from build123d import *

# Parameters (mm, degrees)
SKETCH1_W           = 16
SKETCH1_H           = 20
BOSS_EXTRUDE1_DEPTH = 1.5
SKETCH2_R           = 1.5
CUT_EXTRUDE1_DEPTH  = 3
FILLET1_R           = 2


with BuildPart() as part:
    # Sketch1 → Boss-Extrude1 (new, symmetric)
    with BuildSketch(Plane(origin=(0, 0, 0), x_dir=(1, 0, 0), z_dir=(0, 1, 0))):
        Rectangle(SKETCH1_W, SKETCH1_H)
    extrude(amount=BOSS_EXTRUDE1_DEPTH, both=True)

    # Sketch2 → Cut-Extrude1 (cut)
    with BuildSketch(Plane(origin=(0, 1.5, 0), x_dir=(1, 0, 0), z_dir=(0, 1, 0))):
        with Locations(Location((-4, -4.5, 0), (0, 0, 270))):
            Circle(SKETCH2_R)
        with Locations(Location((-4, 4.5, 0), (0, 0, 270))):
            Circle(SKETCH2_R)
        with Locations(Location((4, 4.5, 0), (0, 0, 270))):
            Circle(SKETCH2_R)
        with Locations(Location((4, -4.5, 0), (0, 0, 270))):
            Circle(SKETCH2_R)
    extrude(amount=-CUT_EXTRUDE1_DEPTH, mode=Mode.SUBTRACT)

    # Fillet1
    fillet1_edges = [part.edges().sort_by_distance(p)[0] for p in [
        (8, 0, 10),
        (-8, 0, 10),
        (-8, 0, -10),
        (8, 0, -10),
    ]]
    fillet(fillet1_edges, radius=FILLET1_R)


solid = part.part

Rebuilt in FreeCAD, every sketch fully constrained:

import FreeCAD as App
import Part
import Sketcher
Q = App.Units.Quantity


def edges_at(feature, points):
    """Names of the edges that pass closest to the given points."""
    edges = feature.Shape.Edges
    near = lambda p: min(range(len(edges)), key=lambda i: edges[i].distToShape(Part.Vertex(*p))[0])
    return sorted({f"Edge{near(p) + 1}" for p in points})

doc = App.newDocument("Part")
body = doc.addObject("PartDesign::Body", "Body")

sketch1 = body.newObject("Sketcher::SketchObject", "Sketch")
sketch1.AttachmentSupport = (doc.getObject("XZ_Plane"), [""])
sketch1.MapMode = "FlatFace"
sketch1.addGeometry(Part.LineSegment(App.Vector(-8, -10, 0), App.Vector(-8, 10, 0)), False)
sketch1.addGeometry(Part.LineSegment(App.Vector(-8, 10, 0), App.Vector(8, 10, 0)), False)
sketch1.addGeometry(Part.LineSegment(App.Vector(8, 10, 0), App.Vector(8, -10, 0)), False)
sketch1.addGeometry(Part.LineSegment(App.Vector(8, -10, 0), App.Vector(-8, -10, 0)), False)
sketch1.addConstraint(Sketcher.Constraint("Coincident", 0, 2, 1, 1))
sketch1.addConstraint(Sketcher.Constraint("Coincident", 1, 2, 2, 1))
sketch1.addConstraint(Sketcher.Constraint("Coincident", 2, 2, 3, 1))
sketch1.addConstraint(Sketcher.Constraint("Coincident", 3, 2, 0, 1))
sketch1.addConstraint(Sketcher.Constraint("Vertical", 0))
sketch1.addConstraint(Sketcher.Constraint("Horizontal", 1))
sketch1.addConstraint(Sketcher.Constraint("Vertical", 2))
sketch1.addConstraint(Sketcher.Constraint("Horizontal", 3))
sketch1.addConstraint(Sketcher.Constraint("Symmetric", 0, 2, 2, 2, -1, 1))
sketch1.addConstraint(Sketcher.Constraint("DistanceX", 1, 1, 1, 2, Q("16 mm")))
sketch1.addConstraint(Sketcher.Constraint("DistanceY", 0, 1, 0, 2, Q("20 mm")))
pad1 = body.newObject("PartDesign::Pad", "Pad")
pad1.Profile = sketch1
pad1.Length = 3
pad1.Midplane = True

sketch2 = body.newObject("Sketcher::SketchObject", "Sketch001")
sketch2.AttachmentSupport = (doc.getObject("XZ_Plane"), [""])
sketch2.MapMode = "FlatFace"
sketch2.AttachmentOffset = App.Placement(App.Vector(0, 0, -1.5), App.Rotation())
sketch2.addGeometry(Part.Circle(App.Vector(-4, 4.5, 0), App.Vector(0, 0, 1), 1.5), False)
sketch2.addGeometry(Part.Circle(App.Vector(-4, -4.5, 0), App.Vector(0, 0, 1), 1.5), False)
sketch2.addGeometry(Part.Circle(App.Vector(4, -4.5, 0), App.Vector(0, 0, 1), 1.5), False)
sketch2.addGeometry(Part.Circle(App.Vector(4, 4.5, 0), App.Vector(0, 0, 1), 1.5), False)
sketch2.addConstraint(Sketcher.Constraint("Equal", 0, 1))
sketch2.addConstraint(Sketcher.Constraint("Equal", 1, 2))
sketch2.addConstraint(Sketcher.Constraint("Equal", 2, 3))
sketch2.addConstraint(Sketcher.Constraint("Symmetric", 0, 3, 2, 3, -1, 1))
sketch2.addConstraint(Sketcher.Constraint("Symmetric", 1, 3, 3, 3, -1, 1))
sketch2.addConstraint(Sketcher.Constraint("Symmetric", 1, 3, 2, 3, -2))
sketch2.addConstraint(Sketcher.Constraint("Diameter", 0, Q("3 mm")))
sketch2.addConstraint(Sketcher.Constraint("DistanceX", 0, 3, -1, 1, Q("4 mm")))
sketch2.addConstraint(Sketcher.Constraint("DistanceY", 1, 3, 0, 3, Q("9 mm")))
pocket1 = body.newObject("PartDesign::Pocket", "Pocket")
pocket1.Profile = sketch2
pocket1.Length = 3
pocket1.Reversed = True
doc.recompute()

fillet = body.newObject("PartDesign::Fillet", "Fillet")
fillet.Base = (pocket1, edges_at(pocket1, [
    (8, 0, 10),
    (-8, 0, 10),
    (-8, 0, -10),
    (8, 0, -10),
]))
fillet.Radius = 2

doc.recompute()
